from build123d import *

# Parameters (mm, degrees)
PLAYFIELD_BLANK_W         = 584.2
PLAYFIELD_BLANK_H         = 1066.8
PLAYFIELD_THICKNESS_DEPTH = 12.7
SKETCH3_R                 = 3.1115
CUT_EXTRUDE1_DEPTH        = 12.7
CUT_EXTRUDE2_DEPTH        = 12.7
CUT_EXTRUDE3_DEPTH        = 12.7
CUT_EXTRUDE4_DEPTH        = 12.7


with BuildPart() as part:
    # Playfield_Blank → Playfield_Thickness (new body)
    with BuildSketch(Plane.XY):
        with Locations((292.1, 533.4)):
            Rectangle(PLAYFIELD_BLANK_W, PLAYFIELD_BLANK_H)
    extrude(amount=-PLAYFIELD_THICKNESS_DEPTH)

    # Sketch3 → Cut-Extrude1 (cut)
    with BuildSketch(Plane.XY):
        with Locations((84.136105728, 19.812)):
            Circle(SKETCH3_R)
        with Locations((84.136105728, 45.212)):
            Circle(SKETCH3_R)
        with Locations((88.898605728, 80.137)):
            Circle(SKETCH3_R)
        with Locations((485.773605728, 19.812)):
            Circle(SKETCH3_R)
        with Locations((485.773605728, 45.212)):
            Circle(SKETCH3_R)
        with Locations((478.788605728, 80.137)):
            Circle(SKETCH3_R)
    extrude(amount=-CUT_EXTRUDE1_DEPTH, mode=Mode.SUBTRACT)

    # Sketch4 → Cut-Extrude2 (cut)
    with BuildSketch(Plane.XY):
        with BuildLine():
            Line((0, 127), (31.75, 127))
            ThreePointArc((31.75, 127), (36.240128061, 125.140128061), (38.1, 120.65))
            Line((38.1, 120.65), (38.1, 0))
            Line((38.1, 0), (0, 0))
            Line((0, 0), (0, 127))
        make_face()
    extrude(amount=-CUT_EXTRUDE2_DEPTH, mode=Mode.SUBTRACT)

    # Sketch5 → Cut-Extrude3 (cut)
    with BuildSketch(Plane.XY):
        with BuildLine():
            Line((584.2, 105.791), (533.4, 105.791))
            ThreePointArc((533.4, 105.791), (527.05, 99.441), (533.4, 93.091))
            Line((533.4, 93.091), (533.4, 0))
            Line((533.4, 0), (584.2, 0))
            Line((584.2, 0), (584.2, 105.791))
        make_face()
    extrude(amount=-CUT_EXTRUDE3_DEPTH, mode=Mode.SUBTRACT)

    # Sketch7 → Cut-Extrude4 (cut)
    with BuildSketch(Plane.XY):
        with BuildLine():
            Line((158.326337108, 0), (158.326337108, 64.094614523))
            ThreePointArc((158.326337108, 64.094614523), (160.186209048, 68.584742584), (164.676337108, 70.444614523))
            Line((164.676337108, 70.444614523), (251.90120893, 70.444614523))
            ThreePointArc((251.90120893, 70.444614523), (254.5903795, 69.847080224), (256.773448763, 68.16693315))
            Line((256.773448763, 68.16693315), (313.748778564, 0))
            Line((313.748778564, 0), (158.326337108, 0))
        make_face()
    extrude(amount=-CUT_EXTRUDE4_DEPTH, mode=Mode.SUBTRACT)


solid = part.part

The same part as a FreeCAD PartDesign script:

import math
import FreeCAD as App
import Part
import Sketcher
from FreeCAD import Vector
Q = App.Units.Quantity

doc = App.newDocument("Part")
params = doc.addObject("Spreadsheet::Sheet", "Params")
for row, (alias, value) in enumerate([
    ("sketch1_width", "23 in"),
    ("sketch1_height", "42 in"),
    ("pad1_length", "0.5 in"),
    ("sketch2_diameter", "0.245 in"),
    ("pocket1_length", "0.5 in"),
    ("sketch3_height", "5 in"),
    ("sketch3_radius", "0.25 in"),
    ("sketch3_width", "1.5 in"),
    ("pocket2_length", "0.5 in"),
    ("sketch4_width", "2 in"),
    ("sketch4_radius", "0.25 in"),
    ("sketch4_height", "3.665 in"),
    ("pocket3_length", "0.5 in"),
    ("sketch5_radius", "0.25 in"),
    ("pocket4_length", "0.5 in"),
], start=1):
    params.set(f"A{row}", alias)
    params.set(f"B{row}", "=" + value)
    params.setAlias(f"B{row}", alias)

body = doc.addObject("PartDesign::Body", "Body")

# Sketch on XY plane
sketch1 = body.newObject("Sketcher::SketchObject", "Sketch")
sketch1.AttachmentSupport = (doc.getObject("XY_Plane"), [""])
sketch1.MapMode = "FlatFace"
sketch1.addGeometry([
    Part.LineSegment(Vector(0, 1066.8, 0), Vector(0, 0, 0)),
    Part.LineSegment(Vector(0, 0, 0), Vector(584.2, 0, 0)),
    Part.LineSegment(Vector(584.2, 0, 0), Vector(584.2, 1066.8, 0)),
    Part.LineSegment(Vector(584.2, 1066.8, 0), Vector(0, 1066.8, 0)),
], False)
sketch1.addConstraint([
    Sketcher.Constraint("Coincident", 0, 2, 1, 1),
    Sketcher.Constraint("Coincident", 1, 2, 2, 1),
    Sketcher.Constraint("Coincident", 2, 2, 3, 1),
    Sketcher.Constraint("Coincident", 3, 2, 0, 1),
    Sketcher.Constraint("Vertical", 0),
    Sketcher.Constraint("Horizontal", 1),
    Sketcher.Constraint("Vertical", 2),
    Sketcher.Constraint("Horizontal", 3),
    Sketcher.Constraint("Coincident", 0, 2, -1, 1),
    Sketcher.Constraint("DistanceX", 1, 1, 1, 2, Q("23 in")),
    Sketcher.Constraint("DistanceY", 0, 2, 0, 1, Q("42 in")),
])
sketch1.setExpression("Constraints[9]", "Params.sketch1_width")
sketch1.setExpression("Constraints[10]", "Params.sketch1_height")
pad1 = body.newObject("PartDesign::Pad", "Pad")
pad1.Profile = sketch1
pad1.setExpression("Length", "Params.pad1_length")
pad1.Reversed = True

# Sketch on XY plane
sketch2 = body.newObject("Sketcher::SketchObject", "Sketch001")
sketch2.AttachmentSupport = (doc.getObject("XY_Plane"), [""])
sketch2.MapMode = "FlatFace"
sketch2.addGeometry([
    Part.Circle(Vector(84.136106, 19.812, 0), Vector(0, 0, 1), 3.1115),  # 0
    Part.Circle(Vector(84.136106, 45.212, 0), Vector(0, 0, 1), 3.1115),  # 1
    Part.Circle(Vector(88.898606, 80.137, 0), Vector(0, 0, 1), 3.1115),  # 2
    Part.Circle(Vector(485.773606, 19.812, 0), Vector(0, 0, 1), 3.1115),  # 3
    Part.Circle(Vector(485.773606, 45.212, 0), Vector(0, 0, 1), 3.1115),  # 4
    Part.Circle(Vector(478.788606, 80.137, 0), Vector(0, 0, 1), 3.1115),  # 5
], False)
sketch2.addConstraint([
    Sketcher.Constraint("Equal", 0, 1),
    Sketcher.Constraint("Equal", 1, 2),
    Sketcher.Constraint("Equal", 2, 3),
    Sketcher.Constraint("Equal", 3, 4),
    Sketcher.Constraint("Equal", 4, 5),
    Sketcher.Constraint("Horizontal", 0, 3, 3, 3),
    Sketcher.Constraint("Horizontal", 1, 3, 4, 3),
    Sketcher.Constraint("Horizontal", 2, 3, 5, 3),
    Sketcher.Constraint("Vertical", 0, 3, 1, 3),
    Sketcher.Constraint("Vertical", 3, 3, 4, 3),
    Sketcher.Constraint("Diameter", 0, Q("0.245 in")),
    Sketcher.Constraint("DistanceY", 0, 3, 1, 3, Q("1 in")),
    Sketcher.Constraint("DistanceY", -1, 1, 0, 3, Q("0.78 in")),
    Sketcher.Constraint("DistanceX", 2, 3, 5, 3, Q("15.35 in")),
    Sketcher.Constraint("DistanceY", -1, 1, 2, 3, Q("3.155 in")),
    Sketcher.Constraint("DistanceX", 1, 3, 2, 3, Q("0.1875 in")),
    Sketcher.Constraint("DistanceX", 2, 3, 3, 3, Q("15.625 in")),
    Sketcher.Constraint("DistanceX", -1, 1, 0, 3, Q("84.136106 mm")),
])
sketch2.setExpression("Constraints[10]", "Params.sketch2_diameter")
pocket1 = body.newObject("PartDesign::Pocket", "Pocket")
pocket1.Profile = sketch2
pocket1.setExpression("Length", "Params.pocket1_length")

# Sketch on XY plane
sketch3 = body.newObject("Sketcher::SketchObject", "Sketch002")
sketch3.AttachmentSupport = (doc.getObject("XY_Plane"), [""])
sketch3.MapMode = "FlatFace"
sketch3.addGeometry([
    Part.LineSegment(Vector(31.75, 127, 0), Vector(0, 127, 0)),  # 0
    Part.LineSegment(Vector(0, 127, 0), Vector(0, 0, 0)),  # 1
    Part.LineSegment(Vector(0, 0, 0), Vector(38.1, 0, 0)),  # 2
    Part.LineSegment(Vector(38.1, 0, 0), Vector(38.1, 120.65, 0)),  # 3
    Part.ArcOfCircle(Part.Circle(Vector(31.75, 120.65, 0), Vector(0, 0, 1), 6.35), math.radians(0), math.radians(90)),  # 4
], False)
sketch3.addConstraint([
    Sketcher.Constraint("Coincident", 0, 2, 1, 1),
    Sketcher.Constraint("Coincident", 1, 2, 2, 1),
    Sketcher.Constraint("Coincident", 2, 2, 3, 1),
    Sketcher.Constraint("Tangent", 3, 2, 4, 1),
    Sketcher.Constraint("Tangent", 4, 2, 0, 1),
    Sketcher.Constraint("Horizontal", 0),
    Sketcher.Constraint("Vertical", 1),
    Sketcher.Constraint("Horizontal", 2),
    Sketcher.Constraint("Vertical", 3),
    Sketcher.Constraint("Coincident", 1, 2, -1, 1),
    Sketcher.Constraint("DistanceY", 1, 2, 1, 1, Q("5 in")),
    Sketcher.Constraint("Radius", 4, Q("0.25 in")),
    Sketcher.Constraint("DistanceX", 2, 1, 2, 2, Q("1.5 in")),
])
sketch3.setExpression("Constraints[10]", "Params.sketch3_height")
sketch3.setExpression("Constraints[11]", "Params.sketch3_radius")
sketch3.setExpression("Constraints[12]", "Params.sketch3_width")
pocket2 = body.newObject("PartDesign::Pocket", "Pocket001")
pocket2.Profile = sketch3
pocket2.setExpression("Length", "Params.pocket2_length")

# Sketch on XY plane
sketch4 = body.newObject("Sketcher::SketchObject", "Sketch003")
sketch4.AttachmentSupport = (doc.getObject("XY_Plane"), [""])
sketch4.MapMode = "FlatFace"
sketch4.addGeometry([
    Part.LineSegment(Vector(584.2, 105.791, 0), Vector(533.4, 105.791, 0)),  # 0
    Part.ArcOfCircle(Part.Circle(Vector(533.4, 99.441, 0), Vector(0, 0, 1), 6.35), math.radians(90), math.radians(270)),  # 1
    Part.LineSegment(Vector(533.4, 93.091, 0), Vector(533.4, 0, 0)),  # 2
    Part.LineSegment(Vector(533.4, 0, 0), Vector(584.2, 0, 0)),  # 3
    Part.LineSegment(Vector(584.2, 0, 0), Vector(584.2, 105.791, 0)),  # 4
], False)
sketch4.addConstraint([
    Sketcher.Constraint("Tangent", 0, 2, 1, 1),
    Sketcher.Constraint("Coincident", 1, 2, 2, 1),
    Sketcher.Constraint("Coincident", 2, 2, 3, 1),
    Sketcher.Constraint("Coincident", 3, 2, 4, 1),
    Sketcher.Constraint("Coincident", 4, 2, 0, 1),
    Sketcher.Constraint("Horizontal", 0),
    Sketcher.Constraint("Vertical", 2),
    Sketcher.Constraint("Horizontal", 3),
    Sketcher.Constraint("Vertical", 4),
    Sketcher.Constraint("PointOnObject", 2, 2, -1),
    Sketcher.Constraint("Vertical", 0, 2, 1, 2),
    Sketcher.Constraint("DistanceX", 0, 2, 0, 1, Q("2 in")),
    Sketcher.Constraint("Radius", 1, Q("0.25 in")),
    Sketcher.Constraint("DistanceX", -1, 1, 1, 3, Q("21 in")),
    Sketcher.Constraint("DistanceY", 2, 2, 2, 1, Q("3.665 in")),
])
sketch4.setExpression("Constraints[11]", "Params.sketch4_width")
sketch4.setExpression("Constraints[12]", "Params.sketch4_radius")
sketch4.setExpression("Constraints[14]", "Params.sketch4_height")
pocket3 = body.newObject("PartDesign::Pocket", "Pocket002")
pocket3.Profile = sketch4
pocket3.setExpression("Length", "Params.pocket3_length")

# Sketch on XY plane
sketch5 = body.newObject("Sketcher::SketchObject", "Sketch004")
sketch5.AttachmentSupport = (doc.getObject("XY_Plane"), [""])
sketch5.MapMode = "FlatFace"
sketch5.addGeometry([
    Part.LineSegment(Vector(158.326337, 64.094615, 0), Vector(158.326337, 0, 0)),  # 0
    Part.LineSegment(Vector(158.326337, 0, 0), Vector(313.748779, 0, 0)),  # 1
    Part.LineSegment(Vector(313.748779, 0, 0), Vector(256.773449, 68.166933, 0)),  # 2
    Part.ArcOfCircle(Part.Circle(Vector(251.901209, 64.094615, 0), Vector(0, 0, 1), 6.35), math.radians(39.889574), math.radians(90)),  # 3
    Part.LineSegment(Vector(251.901209, 70.444615, 0), Vector(164.676337, 70.444615, 0)),  # 4
    Part.ArcOfCircle(Part.Circle(Vector(164.676337, 64.094615, 0), Vector(0, 0, 1), 6.35), math.radians(90), math.radians(180)),  # 5
], False)
sketch5.addConstraint([
    Sketcher.Constraint("Coincident", 0, 2, 1, 1),
    Sketcher.Constraint("Coincident", 1, 2, 2, 1),
    Sketcher.Constraint("Tangent", 2, 2, 3, 1),
    Sketcher.Constraint("Tangent", 3, 2, 4, 1),
    Sketcher.Constraint("Tangent", 4, 2, 5, 1),
    Sketcher.Constraint("Tangent", 5, 2, 0, 1),
    Sketcher.Constraint("Vertical", 0),
    Sketcher.Constraint("Horizontal", 1),
    Sketcher.Constraint("Horizontal", 4),
    Sketcher.Constraint("Equal", 3, 5),
    Sketcher.Constraint("PointOnObject", 0, 2, -1),
    Sketcher.Constraint("Radius", 3, Q("0.25 in")),
    Sketcher.Constraint("Distance", 2, Q("88.842101 mm")),
    Sketcher.Constraint("DistanceX", 1, 1, 1, 2, Q("155.422441 mm")),
    Sketcher.Constraint("DistanceX", 4, 2, 4, 1, Q("87.224872 mm")),
    Sketcher.Constraint("DistanceX", -1, 1, 3, 3, Q("251.901209 mm")),
])
sketch5.setExpression("Constraints[11]", "Params.sketch5_radius")
pocket4 = body.newObject("PartDesign::Pocket", "Pocket003")
pocket4.Profile = sketch5
pocket4.setExpression("Length", "Params.pocket4_length")

doc.recompute()
